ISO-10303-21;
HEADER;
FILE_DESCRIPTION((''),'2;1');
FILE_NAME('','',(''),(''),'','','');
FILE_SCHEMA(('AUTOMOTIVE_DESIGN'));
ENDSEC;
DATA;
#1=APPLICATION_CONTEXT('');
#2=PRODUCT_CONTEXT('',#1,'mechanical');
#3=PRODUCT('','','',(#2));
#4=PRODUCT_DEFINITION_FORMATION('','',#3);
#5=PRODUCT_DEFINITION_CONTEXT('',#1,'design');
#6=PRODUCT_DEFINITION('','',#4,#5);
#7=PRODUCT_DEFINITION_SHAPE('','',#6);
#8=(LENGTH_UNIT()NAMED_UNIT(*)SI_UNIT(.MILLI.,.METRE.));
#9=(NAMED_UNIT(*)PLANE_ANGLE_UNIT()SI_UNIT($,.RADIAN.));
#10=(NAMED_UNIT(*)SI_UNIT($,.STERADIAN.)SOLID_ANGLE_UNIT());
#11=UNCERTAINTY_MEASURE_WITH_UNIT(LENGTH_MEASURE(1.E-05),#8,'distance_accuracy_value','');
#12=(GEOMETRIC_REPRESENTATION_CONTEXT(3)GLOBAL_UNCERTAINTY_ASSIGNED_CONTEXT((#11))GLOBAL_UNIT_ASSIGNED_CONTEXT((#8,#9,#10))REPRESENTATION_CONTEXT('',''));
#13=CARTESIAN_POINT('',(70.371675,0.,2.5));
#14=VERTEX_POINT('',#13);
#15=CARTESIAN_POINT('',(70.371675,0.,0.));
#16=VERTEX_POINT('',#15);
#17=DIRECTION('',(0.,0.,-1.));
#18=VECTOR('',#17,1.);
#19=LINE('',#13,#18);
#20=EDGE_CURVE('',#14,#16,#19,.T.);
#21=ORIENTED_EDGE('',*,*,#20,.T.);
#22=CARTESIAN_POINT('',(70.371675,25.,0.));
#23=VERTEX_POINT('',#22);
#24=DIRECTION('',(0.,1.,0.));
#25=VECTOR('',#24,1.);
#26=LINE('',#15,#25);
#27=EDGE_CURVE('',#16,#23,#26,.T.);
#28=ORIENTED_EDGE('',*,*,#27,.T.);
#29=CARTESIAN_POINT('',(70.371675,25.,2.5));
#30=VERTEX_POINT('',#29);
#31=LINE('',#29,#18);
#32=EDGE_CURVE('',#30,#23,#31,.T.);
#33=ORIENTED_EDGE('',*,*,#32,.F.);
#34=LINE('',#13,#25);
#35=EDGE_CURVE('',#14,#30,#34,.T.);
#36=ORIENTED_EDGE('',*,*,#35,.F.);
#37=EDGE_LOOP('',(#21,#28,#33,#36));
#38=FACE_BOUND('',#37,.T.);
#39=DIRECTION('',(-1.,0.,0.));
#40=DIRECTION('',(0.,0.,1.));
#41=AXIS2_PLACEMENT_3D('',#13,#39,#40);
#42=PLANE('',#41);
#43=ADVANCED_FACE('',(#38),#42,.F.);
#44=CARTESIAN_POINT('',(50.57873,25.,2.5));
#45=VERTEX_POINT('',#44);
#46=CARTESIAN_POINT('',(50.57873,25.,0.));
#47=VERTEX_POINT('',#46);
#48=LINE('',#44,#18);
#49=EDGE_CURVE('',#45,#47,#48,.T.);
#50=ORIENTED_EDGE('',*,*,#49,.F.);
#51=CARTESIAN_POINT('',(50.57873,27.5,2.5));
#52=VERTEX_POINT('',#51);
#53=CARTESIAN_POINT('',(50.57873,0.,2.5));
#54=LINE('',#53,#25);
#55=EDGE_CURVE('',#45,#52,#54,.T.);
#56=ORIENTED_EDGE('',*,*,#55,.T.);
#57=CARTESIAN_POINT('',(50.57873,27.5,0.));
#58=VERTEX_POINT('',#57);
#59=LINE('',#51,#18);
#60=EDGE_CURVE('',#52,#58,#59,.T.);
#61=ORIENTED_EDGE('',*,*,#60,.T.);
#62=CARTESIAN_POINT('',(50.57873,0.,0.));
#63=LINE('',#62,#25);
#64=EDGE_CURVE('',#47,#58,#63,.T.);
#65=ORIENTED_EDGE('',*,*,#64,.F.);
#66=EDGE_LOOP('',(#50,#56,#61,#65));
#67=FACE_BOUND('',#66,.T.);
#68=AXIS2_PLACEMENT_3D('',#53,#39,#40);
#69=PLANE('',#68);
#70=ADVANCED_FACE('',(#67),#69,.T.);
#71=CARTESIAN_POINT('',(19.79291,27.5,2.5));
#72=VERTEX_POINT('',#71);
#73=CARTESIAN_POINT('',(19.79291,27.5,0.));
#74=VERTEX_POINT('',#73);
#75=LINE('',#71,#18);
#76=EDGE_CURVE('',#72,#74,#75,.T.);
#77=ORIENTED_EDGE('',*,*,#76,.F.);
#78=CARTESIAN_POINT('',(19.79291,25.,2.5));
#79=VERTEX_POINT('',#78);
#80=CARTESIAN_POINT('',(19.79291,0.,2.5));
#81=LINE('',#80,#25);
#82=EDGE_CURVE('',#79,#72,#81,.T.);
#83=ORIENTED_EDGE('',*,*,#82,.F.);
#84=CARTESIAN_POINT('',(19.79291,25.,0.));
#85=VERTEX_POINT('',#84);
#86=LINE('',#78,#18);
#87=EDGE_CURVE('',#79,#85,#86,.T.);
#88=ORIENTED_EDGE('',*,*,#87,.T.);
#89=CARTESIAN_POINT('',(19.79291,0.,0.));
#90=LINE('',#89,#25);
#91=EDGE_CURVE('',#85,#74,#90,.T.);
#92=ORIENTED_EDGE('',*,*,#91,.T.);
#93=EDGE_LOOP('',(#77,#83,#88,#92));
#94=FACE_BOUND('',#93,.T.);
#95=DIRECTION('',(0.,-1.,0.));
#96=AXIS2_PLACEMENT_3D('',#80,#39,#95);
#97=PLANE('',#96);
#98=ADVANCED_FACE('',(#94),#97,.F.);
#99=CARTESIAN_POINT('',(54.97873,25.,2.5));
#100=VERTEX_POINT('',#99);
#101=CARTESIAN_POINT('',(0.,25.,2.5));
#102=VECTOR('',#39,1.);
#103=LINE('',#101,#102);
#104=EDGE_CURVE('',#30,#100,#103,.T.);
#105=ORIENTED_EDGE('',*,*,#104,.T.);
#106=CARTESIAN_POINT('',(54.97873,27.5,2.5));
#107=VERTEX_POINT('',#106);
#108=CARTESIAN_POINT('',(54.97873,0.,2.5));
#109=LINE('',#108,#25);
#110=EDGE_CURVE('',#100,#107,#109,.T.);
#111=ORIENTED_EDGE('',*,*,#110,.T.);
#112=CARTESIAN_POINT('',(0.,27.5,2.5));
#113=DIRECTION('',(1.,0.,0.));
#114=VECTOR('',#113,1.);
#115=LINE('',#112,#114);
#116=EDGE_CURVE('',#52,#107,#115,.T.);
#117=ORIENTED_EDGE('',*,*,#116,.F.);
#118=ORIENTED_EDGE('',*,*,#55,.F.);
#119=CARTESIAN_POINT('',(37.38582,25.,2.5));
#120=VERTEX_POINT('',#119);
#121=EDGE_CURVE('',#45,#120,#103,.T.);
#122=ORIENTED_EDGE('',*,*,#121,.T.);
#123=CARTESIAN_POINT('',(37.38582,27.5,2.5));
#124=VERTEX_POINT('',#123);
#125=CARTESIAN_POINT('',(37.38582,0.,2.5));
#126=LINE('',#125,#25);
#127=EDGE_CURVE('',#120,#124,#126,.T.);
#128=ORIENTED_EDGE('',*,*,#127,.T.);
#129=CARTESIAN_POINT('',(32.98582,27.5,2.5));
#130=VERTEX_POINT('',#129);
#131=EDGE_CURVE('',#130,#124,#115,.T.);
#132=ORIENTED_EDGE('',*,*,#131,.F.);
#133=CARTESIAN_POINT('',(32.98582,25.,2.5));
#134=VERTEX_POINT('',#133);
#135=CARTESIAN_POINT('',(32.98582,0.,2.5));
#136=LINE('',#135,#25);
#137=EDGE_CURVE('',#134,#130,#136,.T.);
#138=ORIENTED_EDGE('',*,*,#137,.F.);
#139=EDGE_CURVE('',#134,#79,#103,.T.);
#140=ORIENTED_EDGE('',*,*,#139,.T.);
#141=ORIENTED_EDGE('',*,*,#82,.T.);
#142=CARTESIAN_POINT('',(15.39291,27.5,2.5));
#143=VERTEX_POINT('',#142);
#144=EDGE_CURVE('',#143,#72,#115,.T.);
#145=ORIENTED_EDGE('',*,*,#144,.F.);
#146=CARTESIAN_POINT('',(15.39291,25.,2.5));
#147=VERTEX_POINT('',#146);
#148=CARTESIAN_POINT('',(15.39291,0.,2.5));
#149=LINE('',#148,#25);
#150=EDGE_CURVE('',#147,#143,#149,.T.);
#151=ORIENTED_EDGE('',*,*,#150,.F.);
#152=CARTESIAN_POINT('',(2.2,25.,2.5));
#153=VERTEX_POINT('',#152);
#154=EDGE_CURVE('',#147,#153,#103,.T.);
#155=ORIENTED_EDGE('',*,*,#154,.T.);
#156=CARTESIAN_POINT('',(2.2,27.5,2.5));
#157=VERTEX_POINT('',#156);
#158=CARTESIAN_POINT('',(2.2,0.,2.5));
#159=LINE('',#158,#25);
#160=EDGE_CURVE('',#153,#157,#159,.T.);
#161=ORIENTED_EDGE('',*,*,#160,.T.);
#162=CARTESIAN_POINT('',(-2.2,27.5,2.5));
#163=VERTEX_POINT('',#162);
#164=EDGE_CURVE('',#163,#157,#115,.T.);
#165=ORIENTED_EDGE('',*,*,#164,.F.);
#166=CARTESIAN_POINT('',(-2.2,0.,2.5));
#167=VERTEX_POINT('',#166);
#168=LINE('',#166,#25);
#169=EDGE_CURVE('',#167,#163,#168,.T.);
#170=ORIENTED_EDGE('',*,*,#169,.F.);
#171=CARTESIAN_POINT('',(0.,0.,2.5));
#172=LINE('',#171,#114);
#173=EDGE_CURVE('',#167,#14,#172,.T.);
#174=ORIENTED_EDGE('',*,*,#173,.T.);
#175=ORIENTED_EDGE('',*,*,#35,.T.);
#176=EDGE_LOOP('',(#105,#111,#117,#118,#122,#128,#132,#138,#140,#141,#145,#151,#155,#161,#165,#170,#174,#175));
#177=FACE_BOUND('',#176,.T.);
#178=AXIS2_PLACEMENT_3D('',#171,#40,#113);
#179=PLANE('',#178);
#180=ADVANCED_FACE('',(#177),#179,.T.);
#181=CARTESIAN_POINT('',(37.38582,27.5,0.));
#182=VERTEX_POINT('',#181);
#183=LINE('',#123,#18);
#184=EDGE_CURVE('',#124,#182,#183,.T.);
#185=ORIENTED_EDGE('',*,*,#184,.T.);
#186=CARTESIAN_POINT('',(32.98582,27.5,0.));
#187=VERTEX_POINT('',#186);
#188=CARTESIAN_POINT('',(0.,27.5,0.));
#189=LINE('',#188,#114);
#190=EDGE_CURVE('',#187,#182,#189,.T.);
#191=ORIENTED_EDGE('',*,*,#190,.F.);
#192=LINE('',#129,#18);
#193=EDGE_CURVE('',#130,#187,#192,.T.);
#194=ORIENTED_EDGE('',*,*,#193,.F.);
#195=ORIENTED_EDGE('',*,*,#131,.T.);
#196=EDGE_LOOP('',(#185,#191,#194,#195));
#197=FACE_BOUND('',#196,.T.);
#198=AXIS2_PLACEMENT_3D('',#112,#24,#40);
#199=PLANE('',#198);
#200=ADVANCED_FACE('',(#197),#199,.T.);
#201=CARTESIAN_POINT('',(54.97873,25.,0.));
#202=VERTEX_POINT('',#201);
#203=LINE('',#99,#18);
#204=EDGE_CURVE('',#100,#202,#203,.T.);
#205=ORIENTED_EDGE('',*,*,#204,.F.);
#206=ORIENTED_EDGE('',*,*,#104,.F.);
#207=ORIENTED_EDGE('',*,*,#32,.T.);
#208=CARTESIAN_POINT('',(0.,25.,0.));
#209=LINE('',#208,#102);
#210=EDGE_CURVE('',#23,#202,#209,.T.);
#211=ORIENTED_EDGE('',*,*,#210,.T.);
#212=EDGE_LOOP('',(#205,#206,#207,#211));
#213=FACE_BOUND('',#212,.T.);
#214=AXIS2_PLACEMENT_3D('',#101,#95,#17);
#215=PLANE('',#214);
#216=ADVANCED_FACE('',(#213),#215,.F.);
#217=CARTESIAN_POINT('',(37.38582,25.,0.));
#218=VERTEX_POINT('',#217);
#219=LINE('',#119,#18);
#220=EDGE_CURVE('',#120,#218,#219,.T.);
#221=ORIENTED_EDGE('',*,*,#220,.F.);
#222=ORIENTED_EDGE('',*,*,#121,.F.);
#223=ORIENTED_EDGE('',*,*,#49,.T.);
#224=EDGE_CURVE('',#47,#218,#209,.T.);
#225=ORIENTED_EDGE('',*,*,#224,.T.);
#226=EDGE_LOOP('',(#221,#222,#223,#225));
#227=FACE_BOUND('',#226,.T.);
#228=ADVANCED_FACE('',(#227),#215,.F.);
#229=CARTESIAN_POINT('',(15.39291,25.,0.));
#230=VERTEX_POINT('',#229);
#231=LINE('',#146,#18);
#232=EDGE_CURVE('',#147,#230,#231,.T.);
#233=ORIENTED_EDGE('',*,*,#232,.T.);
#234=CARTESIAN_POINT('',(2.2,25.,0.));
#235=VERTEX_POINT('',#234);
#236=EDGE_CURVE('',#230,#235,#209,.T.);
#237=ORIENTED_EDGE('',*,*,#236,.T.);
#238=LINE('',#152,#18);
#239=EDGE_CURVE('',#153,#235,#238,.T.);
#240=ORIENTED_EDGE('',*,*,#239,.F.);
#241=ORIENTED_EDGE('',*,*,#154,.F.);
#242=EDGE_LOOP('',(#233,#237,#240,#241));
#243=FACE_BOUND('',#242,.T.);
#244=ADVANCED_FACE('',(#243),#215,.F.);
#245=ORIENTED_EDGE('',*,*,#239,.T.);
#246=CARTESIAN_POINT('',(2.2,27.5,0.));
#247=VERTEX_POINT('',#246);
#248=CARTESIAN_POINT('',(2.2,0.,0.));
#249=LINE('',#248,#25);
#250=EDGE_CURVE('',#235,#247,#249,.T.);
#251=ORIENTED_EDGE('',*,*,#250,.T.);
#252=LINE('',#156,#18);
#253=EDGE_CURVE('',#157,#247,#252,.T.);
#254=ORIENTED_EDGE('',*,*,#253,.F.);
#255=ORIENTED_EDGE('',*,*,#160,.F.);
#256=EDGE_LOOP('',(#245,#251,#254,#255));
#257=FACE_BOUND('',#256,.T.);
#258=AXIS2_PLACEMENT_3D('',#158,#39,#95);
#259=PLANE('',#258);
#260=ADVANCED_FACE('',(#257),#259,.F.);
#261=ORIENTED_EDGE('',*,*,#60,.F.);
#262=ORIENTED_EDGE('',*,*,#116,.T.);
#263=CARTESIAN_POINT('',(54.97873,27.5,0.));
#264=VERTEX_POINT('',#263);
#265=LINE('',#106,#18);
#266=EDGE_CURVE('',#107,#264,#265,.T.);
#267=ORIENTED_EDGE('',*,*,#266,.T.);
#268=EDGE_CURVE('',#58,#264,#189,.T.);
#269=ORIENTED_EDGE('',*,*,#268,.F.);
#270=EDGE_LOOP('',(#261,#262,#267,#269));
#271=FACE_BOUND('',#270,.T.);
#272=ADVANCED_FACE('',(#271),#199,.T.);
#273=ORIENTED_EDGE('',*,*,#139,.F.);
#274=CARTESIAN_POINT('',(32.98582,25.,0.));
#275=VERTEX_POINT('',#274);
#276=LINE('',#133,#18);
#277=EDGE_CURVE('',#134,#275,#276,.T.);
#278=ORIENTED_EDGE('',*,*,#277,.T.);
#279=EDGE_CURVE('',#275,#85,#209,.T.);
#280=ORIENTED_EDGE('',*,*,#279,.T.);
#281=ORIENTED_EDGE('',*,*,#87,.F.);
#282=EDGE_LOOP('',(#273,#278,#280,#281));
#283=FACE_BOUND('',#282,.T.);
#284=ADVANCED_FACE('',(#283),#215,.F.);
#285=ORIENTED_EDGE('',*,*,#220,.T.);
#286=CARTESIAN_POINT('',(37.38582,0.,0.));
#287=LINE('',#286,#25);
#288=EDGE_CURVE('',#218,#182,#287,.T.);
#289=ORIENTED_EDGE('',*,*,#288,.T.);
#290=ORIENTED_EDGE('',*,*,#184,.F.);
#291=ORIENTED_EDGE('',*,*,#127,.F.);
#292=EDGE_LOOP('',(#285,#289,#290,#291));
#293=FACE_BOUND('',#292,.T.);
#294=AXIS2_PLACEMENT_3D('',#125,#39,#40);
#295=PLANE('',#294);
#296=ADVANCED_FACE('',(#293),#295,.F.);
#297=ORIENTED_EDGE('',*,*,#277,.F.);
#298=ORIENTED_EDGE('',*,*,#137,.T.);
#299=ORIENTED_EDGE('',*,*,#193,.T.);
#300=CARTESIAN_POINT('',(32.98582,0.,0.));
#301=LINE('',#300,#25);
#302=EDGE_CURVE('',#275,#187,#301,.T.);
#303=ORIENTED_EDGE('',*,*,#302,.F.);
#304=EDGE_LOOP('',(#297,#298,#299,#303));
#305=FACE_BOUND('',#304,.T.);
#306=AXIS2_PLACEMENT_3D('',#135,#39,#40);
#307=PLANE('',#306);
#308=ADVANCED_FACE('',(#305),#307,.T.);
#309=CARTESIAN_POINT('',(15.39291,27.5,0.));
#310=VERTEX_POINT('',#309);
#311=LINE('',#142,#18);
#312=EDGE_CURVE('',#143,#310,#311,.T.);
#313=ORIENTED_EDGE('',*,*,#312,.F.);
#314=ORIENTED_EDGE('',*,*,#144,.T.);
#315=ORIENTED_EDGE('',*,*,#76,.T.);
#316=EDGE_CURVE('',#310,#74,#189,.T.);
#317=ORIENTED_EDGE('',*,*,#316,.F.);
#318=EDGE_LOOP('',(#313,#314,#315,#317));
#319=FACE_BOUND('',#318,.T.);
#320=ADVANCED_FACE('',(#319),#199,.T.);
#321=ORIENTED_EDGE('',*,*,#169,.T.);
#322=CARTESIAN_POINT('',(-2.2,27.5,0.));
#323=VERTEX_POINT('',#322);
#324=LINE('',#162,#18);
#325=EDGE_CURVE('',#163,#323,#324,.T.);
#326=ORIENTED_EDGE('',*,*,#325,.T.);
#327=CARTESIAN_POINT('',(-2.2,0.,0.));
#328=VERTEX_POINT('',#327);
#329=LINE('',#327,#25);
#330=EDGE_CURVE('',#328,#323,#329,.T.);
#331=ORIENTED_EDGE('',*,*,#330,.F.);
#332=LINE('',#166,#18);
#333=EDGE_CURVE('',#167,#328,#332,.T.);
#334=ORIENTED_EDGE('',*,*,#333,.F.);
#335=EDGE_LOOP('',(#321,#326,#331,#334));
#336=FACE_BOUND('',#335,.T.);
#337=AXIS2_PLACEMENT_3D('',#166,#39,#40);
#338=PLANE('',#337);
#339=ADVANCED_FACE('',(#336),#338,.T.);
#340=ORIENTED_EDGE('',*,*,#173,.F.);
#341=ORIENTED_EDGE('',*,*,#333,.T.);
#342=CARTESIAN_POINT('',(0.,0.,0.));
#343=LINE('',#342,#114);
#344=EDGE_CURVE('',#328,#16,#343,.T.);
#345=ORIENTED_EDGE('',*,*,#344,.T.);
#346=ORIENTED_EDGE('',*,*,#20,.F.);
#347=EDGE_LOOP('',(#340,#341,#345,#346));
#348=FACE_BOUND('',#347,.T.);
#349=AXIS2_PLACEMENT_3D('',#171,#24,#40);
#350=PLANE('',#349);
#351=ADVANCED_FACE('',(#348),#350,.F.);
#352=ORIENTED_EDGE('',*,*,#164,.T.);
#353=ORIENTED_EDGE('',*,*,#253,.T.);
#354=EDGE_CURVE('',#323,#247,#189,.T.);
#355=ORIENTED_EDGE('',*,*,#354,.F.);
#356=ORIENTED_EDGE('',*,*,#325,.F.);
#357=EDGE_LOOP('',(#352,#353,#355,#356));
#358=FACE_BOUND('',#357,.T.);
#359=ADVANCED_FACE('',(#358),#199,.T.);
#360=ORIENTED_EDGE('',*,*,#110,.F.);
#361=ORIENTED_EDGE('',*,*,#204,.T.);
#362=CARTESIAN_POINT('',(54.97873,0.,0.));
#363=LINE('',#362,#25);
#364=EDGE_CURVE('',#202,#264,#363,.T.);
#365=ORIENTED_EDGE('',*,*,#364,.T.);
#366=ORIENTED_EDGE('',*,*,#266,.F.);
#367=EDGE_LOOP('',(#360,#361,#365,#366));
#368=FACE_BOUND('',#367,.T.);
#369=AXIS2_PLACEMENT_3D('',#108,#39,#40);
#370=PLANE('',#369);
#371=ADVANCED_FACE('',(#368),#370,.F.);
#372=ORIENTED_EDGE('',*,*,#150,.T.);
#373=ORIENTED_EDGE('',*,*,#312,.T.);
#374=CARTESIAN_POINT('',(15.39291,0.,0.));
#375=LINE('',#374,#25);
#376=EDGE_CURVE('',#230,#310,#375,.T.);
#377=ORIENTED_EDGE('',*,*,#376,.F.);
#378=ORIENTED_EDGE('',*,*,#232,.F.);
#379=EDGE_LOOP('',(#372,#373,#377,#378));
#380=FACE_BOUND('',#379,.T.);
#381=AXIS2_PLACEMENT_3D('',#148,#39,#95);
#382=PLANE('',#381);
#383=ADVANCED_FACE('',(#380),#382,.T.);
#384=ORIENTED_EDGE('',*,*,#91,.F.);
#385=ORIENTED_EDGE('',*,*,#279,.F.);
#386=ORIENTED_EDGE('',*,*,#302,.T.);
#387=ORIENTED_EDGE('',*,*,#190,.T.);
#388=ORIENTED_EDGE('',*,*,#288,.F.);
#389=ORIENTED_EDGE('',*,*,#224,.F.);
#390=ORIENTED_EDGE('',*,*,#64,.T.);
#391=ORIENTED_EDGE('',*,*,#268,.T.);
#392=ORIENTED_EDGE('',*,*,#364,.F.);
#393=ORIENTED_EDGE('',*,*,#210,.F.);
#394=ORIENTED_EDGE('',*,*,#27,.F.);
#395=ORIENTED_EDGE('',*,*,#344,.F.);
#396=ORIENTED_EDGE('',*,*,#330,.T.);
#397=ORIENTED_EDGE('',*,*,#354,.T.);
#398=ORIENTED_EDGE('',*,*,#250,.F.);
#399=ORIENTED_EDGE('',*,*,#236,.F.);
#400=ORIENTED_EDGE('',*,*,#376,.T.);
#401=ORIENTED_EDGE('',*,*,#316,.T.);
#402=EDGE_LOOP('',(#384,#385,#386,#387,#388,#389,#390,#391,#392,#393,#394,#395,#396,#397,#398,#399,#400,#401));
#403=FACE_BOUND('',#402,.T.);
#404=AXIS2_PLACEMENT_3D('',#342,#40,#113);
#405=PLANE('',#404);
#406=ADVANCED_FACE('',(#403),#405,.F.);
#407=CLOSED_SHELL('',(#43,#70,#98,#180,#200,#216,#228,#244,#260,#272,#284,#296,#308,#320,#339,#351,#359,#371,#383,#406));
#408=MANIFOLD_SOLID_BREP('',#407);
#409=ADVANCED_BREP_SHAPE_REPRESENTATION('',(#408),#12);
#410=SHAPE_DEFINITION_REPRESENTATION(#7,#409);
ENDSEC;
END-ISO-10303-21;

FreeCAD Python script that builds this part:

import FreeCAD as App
import Part
import Sketcher

V = App.Vector


def add_polygon(sketch, points):
    """Adds a closed chain of lines whose ends are joined by coincident constraints."""
    first, n = sketch.GeometryCount, len(points)
    for a, b in zip(points, points[1:] + points[:1]):
        sketch.addGeometry(Part.LineSegment(App.Vector(*a, 0), App.Vector(*b, 0)), False)
    for i in range(n):
        sketch.addConstraint(Sketcher.Constraint("Coincident", first + i, 2, first + (i + 1) % n, 1))

doc = App.newDocument("Part")
body = doc.addObject("PartDesign::Body", "Body")

# Sketch on XY plane
sketch1 = body.newObject("Sketcher::SketchObject", "Sketch")
sketch1.AttachmentSupport = (doc.getObject("XY_Plane"), [""])
sketch1.MapMode = "FlatFace"
add_polygon(sketch1, [(-2.2, 27.5), (-2.2, 0), (70.4, 0), (70.4, 25), (55, 25), (55, 27.5), (50.6, 27.5), (50.6, 25), (37.4, 25), (37.4, 27.5), (33, 27.5), (33, 25), (19.8, 25), (19.8, 27.5), (15.4, 27.5), (15.4, 25), (2.2, 25), (2.2, 27.5)])  # lines 0-17
sketch1.addConstraint([
    Sketcher.Constraint("Vertical", 0),
    Sketcher.Constraint("Horizontal", 1),
    Sketcher.Constraint("Vertical", 2),
    Sketcher.Constraint("Horizontal", 3),
    Sketcher.Constraint("Vertical", 4),
    Sketcher.Constraint("Horizontal", 5),
    Sketcher.Constraint("Vertical", 6),
    Sketcher.Constraint("Horizontal", 7),
    Sketcher.Constraint("Vertical", 8),
    Sketcher.Constraint("Horizontal", 9),
    Sketcher.Constraint("Vertical", 10),
    Sketcher.Constraint("Horizontal", 11),
    Sketcher.Constraint("Vertical", 12),
    Sketcher.Constraint("Horizontal", 13),
    Sketcher.Constraint("Vertical", 14),
    Sketcher.Constraint("Horizontal", 15),
    Sketcher.Constraint("Vertical", 16),
    Sketcher.Constraint("Horizontal", 17),
    Sketcher.Constraint("PointOnObject", 0, 2, -1),
    Sketcher.Constraint("Horizontal", 3, 2, 6, 2),
    Sketcher.Constraint("Horizontal", 5, 2, 8, 2),
    Sketcher.Constraint("Horizontal", 7, 2, 10, 2),
    Sketcher.Constraint("Horizontal", 9, 2, 12, 2),
    Sketcher.Constraint("Horizontal", 11, 2, 14, 2),
    Sketcher.Constraint("Horizontal", 13, 2, 16, 2),
    Sketcher.Constraint("Equal", 5, 9),
    Sketcher.Constraint("Equal", 7, 11),
    Sketcher.Constraint("Equal", 9, 13),
    Sketcher.Constraint("Equal", 11, 15),
    Sketcher.Constraint("Equal", 13, 17),
    Sketcher.Constraint("DistanceY", 2, 1, 2, 2, 25.0),
    Sketcher.Constraint("DistanceX", 5, 2, 5, 1, 4.4),
    Sketcher.Constraint("DistanceY", 0, 2, 0, 1, 27.5),
    Sketcher.Constraint("DistanceX", 0, 2, -1, 1, 2.2),
    Sketcher.Constraint("DistanceX", 7, 2, 7, 1, 13.19291),
    Sketcher.Constraint("DistanceX", 1, 1, 1, 2, 72.571675),
])
pad1 = body.newObject("PartDesign::Pad", "Pad")
pad1.Profile = sketch1
pad1.Length = 2.5

doc.recompute()
